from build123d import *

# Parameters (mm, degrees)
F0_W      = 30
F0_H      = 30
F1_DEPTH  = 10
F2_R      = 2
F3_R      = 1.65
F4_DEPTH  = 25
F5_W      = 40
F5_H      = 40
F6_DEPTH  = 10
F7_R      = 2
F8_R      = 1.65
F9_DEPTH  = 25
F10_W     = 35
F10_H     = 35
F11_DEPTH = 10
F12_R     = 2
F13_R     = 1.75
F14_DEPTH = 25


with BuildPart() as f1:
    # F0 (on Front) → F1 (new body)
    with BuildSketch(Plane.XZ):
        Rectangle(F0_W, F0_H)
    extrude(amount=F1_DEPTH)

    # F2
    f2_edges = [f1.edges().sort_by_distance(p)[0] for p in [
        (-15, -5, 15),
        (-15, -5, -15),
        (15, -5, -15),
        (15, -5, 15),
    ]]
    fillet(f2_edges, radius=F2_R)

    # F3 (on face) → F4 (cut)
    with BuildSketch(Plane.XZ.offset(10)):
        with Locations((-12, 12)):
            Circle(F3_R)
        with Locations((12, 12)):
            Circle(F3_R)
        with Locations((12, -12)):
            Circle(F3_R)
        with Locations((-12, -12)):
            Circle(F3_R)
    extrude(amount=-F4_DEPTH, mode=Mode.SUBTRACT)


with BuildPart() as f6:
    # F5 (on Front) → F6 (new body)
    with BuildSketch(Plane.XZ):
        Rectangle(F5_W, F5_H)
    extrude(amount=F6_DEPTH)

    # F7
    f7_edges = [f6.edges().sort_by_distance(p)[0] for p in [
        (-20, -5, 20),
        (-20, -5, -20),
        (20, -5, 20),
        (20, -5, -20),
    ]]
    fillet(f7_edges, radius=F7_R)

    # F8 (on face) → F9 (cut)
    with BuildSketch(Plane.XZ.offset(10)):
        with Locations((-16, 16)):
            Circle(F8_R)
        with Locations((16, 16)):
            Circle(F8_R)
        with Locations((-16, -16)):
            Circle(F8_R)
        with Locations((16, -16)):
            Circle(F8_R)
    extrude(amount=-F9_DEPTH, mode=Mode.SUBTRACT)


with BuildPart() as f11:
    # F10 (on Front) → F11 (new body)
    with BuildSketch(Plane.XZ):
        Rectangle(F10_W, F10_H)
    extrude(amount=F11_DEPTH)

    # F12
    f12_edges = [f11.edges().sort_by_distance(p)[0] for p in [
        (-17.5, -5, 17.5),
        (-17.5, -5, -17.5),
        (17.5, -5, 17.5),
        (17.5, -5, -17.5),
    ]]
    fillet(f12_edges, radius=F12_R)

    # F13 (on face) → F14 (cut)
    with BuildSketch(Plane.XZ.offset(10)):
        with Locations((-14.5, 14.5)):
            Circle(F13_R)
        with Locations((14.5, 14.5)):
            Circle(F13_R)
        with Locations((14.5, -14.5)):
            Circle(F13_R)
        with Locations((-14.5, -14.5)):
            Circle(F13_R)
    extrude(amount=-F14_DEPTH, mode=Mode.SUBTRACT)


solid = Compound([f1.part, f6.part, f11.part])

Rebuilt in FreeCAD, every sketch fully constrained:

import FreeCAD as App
import Part
import Sketcher
from FreeCAD import Vector


def edges_at(feature, points):
    """Names of the edges that pass closest to the given points."""
    edges = feature.Shape.Edges
    near = lambda p: min(range(len(edges)), key=lambda i: edges[i].distToShape(Part.Vertex(*p))[0])
    return sorted({f"Edge{near(p) + 1}" for p in points})

doc = App.newDocument("Part")
params = doc.addObject("Spreadsheet::Sheet", "Params")
for row, (alias, value) in enumerate([
    ("sketch1_width", "30 mm"),
    ("pad1_length", "10 mm"),
    ("fillet_radius", "2 mm"),
    ("sketch2_diameter", "3.3 mm"),
    ("pocket1_length", "25 mm"),
    ("sketch3_width", "40 mm"),
    ("pad2_length", "10 mm"),
    ("fillet2_radius", "2 mm"),
    ("sketch4_diameter", "3.3 mm"),
    ("pocket2_length", "25 mm"),
    ("sketch5_width", "35 mm"),
    ("pad3_length", "10 mm"),
    ("fillet3_radius", "2 mm"),
    ("sketch6_diameter", "3.5 mm"),
    ("pocket3_length", "25 mm"),
], start=1):
    params.set(f"A{row}", alias)
    params.set(f"B{row}", "=" + value)
    params.setAlias(f"B{row}", alias)

body = doc.addObject("PartDesign::Body", "Body")

# Sketch on XZ plane
sketch1 = doc.addObject("Sketcher::SketchObject", "Sketch")
body.addObject(sketch1)
sketch1.AttachmentSupport = (doc.XZ_Plane, [""])
sketch1.MapMode = "FlatFace"
sketch1.addGeometry([
    Part.LineSegment(Vector(-15, 15, 0), Vector(-15, -15, 0)),
    Part.LineSegment(Vector(-15, -15, 0), Vector(15, -15, 0)),
    Part.LineSegment(Vector(15, -15, 0), Vector(15, 15, 0)),
    Part.LineSegment(Vector(15, 15, 0), Vector(-15, 15, 0)),
], False)
sketch1.addConstraint([
    Sketcher.Constraint("Coincident", 0, 2, 1, 1),
    Sketcher.Constraint("Coincident", 1, 2, 2, 1),
    Sketcher.Constraint("Coincident", 2, 2, 3, 1),
    Sketcher.Constraint("Coincident", 3, 2, 0, 1),
    Sketcher.Constraint("Vertical", 0),
    Sketcher.Constraint("Horizontal", 1),
    Sketcher.Constraint("Vertical", 2),
    Sketcher.Constraint("Horizontal", 3),
    Sketcher.Constraint("Symmetric", 0, 2, 2, 2, -1, 1),
    Sketcher.Constraint("Equal", 3, 0),
    Sketcher.Constraint("DistanceX", 1, 1, 1, 2, 30.0),
])
sketch1.setExpression("Constraints[10]", "Params.sketch1_width")
pad1 = doc.addObject("PartDesign::Pad", "Pad")
body.addObject(pad1)
pad1.Profile = sketch1
pad1.setExpression("Length", "Params.pad1_length")
doc.recompute()

fillet = doc.addObject("PartDesign::Fillet", "Fillet")
body.addObject(fillet)
fillet.Base = (pad1, edges_at(pad1, [
    (-15, -5, 15),
    (-15, -5, -15),
    (15, -5, -15),
    (15, -5, 15),
]))
fillet.setExpression("Radius", "Params.fillet_radius")

# Sketch on XZ plane
sketch2 = doc.addObject("Sketcher::SketchObject", "Sketch001")
body.addObject(sketch2)
sketch2.AttachmentSupport = (doc.XZ_Plane, [""])
sketch2.MapMode = "FlatFace"
sketch2.AttachmentOffset = App.Placement(Vector(0, 0, 10), App.Rotation())
sketch2.addGeometry([
    Part.Circle(Vector(-12, 12, 0), Vector(0, 0, 1), 1.6),
    Part.Circle(Vector(12, 12, 0), Vector(0, 0, 1), 1.6),
    Part.Circle(Vector(12, -12, 0), Vector(0, 0, 1), 1.6),
    Part.Circle(Vector(-12, -12, 0), Vector(0, 0, 1), 1.6),
], False)
sketch2.addConstraint([
    Sketcher.Constraint("Equal", 0, 1),
    Sketcher.Constraint("Equal", 1, 2),
    Sketcher.Constraint("Equal", 2, 3),
    Sketcher.Constraint("Symmetric", 0, 3, 2, 3, -1, 1),
    Sketcher.Constraint("Symmetric", 1, 3, 3, 3, -1, 1),
    Sketcher.Constraint("Symmetric", 0, 3, 1, 3, -2),
    Sketcher.Constraint("Diameter", 0, 3.3),
    Sketcher.Constraint("DistanceX", 0, 3, -1, 1, 12.0),
    Sketcher.Constraint("DistanceY", -1, 1, 0, 3, 12.0),
])
sketch2.setExpression("Constraints[6]", "Params.sketch2_diameter")
pocket1 = doc.addObject("PartDesign::Pocket", "Pocket")
body.addObject(pocket1)
pocket1.Profile = sketch2
pocket1.setExpression("Length", "Params.pocket1_length")
body2 = doc.addObject("PartDesign::Body", "Body001")

# Sketch on XZ plane
sketch3 = doc.addObject("Sketcher::SketchObject", "Sketch002")
body2.addObject(sketch3)
sketch3.AttachmentSupport = (doc.getObject("XZ_Plane001"), [""])
sketch3.MapMode = "FlatFace"
sketch3.addGeometry([
    Part.LineSegment(Vector(-20, 20, 0), Vector(-20, -20, 0)),
    Part.LineSegment(Vector(-20, -20, 0), Vector(20, -20, 0)),
    Part.LineSegment(Vector(20, -20, 0), Vector(20, 20, 0)),
    Part.LineSegment(Vector(20, 20, 0), Vector(-20, 20, 0)),
], False)
sketch3.addConstraint([
    Sketcher.Constraint("Coincident", 0, 2, 1, 1),
    Sketcher.Constraint("Coincident", 1, 2, 2, 1),
    Sketcher.Constraint("Coincident", 2, 2, 3, 1),
    Sketcher.Constraint("Coincident", 3, 2, 0, 1),
    Sketcher.Constraint("Vertical", 0),
    Sketcher.Constraint("Horizontal", 1),
    Sketcher.Constraint("Vertical", 2),
    Sketcher.Constraint("Horizontal", 3),
    Sketcher.Constraint("Symmetric", 0, 2, 2, 2, -1, 1),
    Sketcher.Constraint("Equal", 3, 0),
    Sketcher.Constraint("DistanceX", 1, 1, 1, 2, 40.0),
])
sketch3.setExpression("Constraints[10]", "Params.sketch3_width")
pad2 = doc.addObject("PartDesign::Pad", "Pad001")
body2.addObject(pad2)
pad2.Profile = sketch3
pad2.setExpression("Length", "Params.pad2_length")
doc.recompute()

fillet2 = doc.addObject("PartDesign::Fillet", "Fillet001")
body2.addObject(fillet2)
fillet2.Base = (pad2, edges_at(pad2, [
    (-20, -5, 20),
    (-20, -5, -20),
    (20, -5, 20),
    (20, -5, -20),
]))
fillet2.setExpression("Radius", "Params.fillet2_radius")

# Sketch on XZ plane
sketch4 = doc.addObject("Sketcher::SketchObject", "Sketch003")
body2.addObject(sketch4)
sketch4.AttachmentSupport = (doc.getObject("XZ_Plane001"), [""])
sketch4.MapMode = "FlatFace"
sketch4.AttachmentOffset = App.Placement(Vector(0, 0, 10), App.Rotation())
sketch4.addGeometry([
    Part.Circle(Vector(-16, 16, 0), Vector(0, 0, 1), 1.6),
    Part.Circle(Vector(16, 16, 0), Vector(0, 0, 1), 1.6),
    Part.Circle(Vector(-16, -16, 0), Vector(0, 0, 1), 1.6),
    Part.Circle(Vector(16, -16, 0), Vector(0, 0, 1), 1.6),
], False)
sketch4.addConstraint([
    Sketcher.Constraint("Equal", 0, 1),
    Sketcher.Constraint("Equal", 1, 2),
    Sketcher.Constraint("Equal", 2, 3),
    Sketcher.Constraint("Symmetric", 1, 3, 2, 3, -1, 1),
    Sketcher.Constraint("Symmetric", 0, 3, 3, 3, -1, 1),
    Sketcher.Constraint("Symmetric", 0, 3, 1, 3, -2),
    Sketcher.Constraint("Diameter", 0, 3.3),
    Sketcher.Constraint("DistanceX", 0, 3, -1, 1, 16.0),
    Sketcher.Constraint("DistanceY", -1, 1, 0, 3, 16.0),
])
sketch4.setExpression("Constraints[6]", "Params.sketch4_diameter")
pocket2 = doc.addObject("PartDesign::Pocket", "Pocket001")
body2.addObject(pocket2)
pocket2.Profile = sketch4
pocket2.setExpression("Length", "Params.pocket2_length")
body3 = doc.addObject("PartDesign::Body", "Body002")

# Sketch on XZ plane
sketch5 = doc.addObject("Sketcher::SketchObject", "Sketch004")
body3.addObject(sketch5)
sketch5.AttachmentSupport = (doc.getObject("XZ_Plane002"), [""])
sketch5.MapMode = "FlatFace"
sketch5.addGeometry([
    Part.LineSegment(Vector(-18, 18, 0), Vector(-18, -18, 0)),
    Part.LineSegment(Vector(-18, -18, 0), Vector(18, -18, 0)),
    Part.LineSegment(Vector(18, -18, 0), Vector(18, 18, 0)),
    Part.LineSegment(Vector(18, 18, 0), Vector(-18, 18, 0)),
], False)
sketch5.addConstraint([
    Sketcher.Constraint("Coincident", 0, 2, 1, 1),
    Sketcher.Constraint("Coincident", 1, 2, 2, 1),
    Sketcher.Constraint("Coincident", 2, 2, 3, 1),
    Sketcher.Constraint("Coincident", 3, 2, 0, 1),
    Sketcher.Constraint("Vertical", 0),
    Sketcher.Constraint("Horizontal", 1),
    Sketcher.Constraint("Vertical", 2),
    Sketcher.Constraint("Horizontal", 3),
    Sketcher.Constraint("Symmetric", 0, 2, 2, 2, -1, 1),
    Sketcher.Constraint("Equal", 3, 0),
    Sketcher.Constraint("DistanceX", 1, 1, 1, 2, 35.0),
])
sketch5.setExpression("Constraints[10]", "Params.sketch5_width")
pad3 = doc.addObject("PartDesign::Pad", "Pad002")
body3.addObject(pad3)
pad3.Profile = sketch5
pad3.setExpression("Length", "Params.pad3_length")
doc.recompute()

fillet3 = doc.addObject("PartDesign::Fillet", "Fillet002")
body3.addObject(fillet3)
fillet3.Base = (pad3, edges_at(pad3, [
    (-17.5, -5, 17.5),
    (-17.5, -5, -17.5),
    (17.5, -5, 17.5),
    (17.5, -5, -17.5),
]))
fillet3.setExpression("Radius", "Params.fillet3_radius")

# Sketch on XZ plane
sketch6 = doc.addObject("Sketcher::SketchObject", "Sketch005")
body3.addObject(sketch6)
sketch6.AttachmentSupport = (doc.getObject("XZ_Plane002"), [""])
sketch6.MapMode = "FlatFace"
sketch6.AttachmentOffset = App.Placement(Vector(0, 0, 10), App.Rotation())
sketch6.addGeometry([
    Part.Circle(Vector(-14.5, 14.5, 0), Vector(0, 0, 1), 1.8),
    Part.Circle(Vector(14.5, 14.5, 0), Vector(0, 0, 1), 1.8),
    Part.Circle(Vector(14.5, -14.5, 0), Vector(0, 0, 1), 1.8),
    Part.Circle(Vector(-14.5, -14.5, 0), Vector(0, 0, 1), 1.8),
], False)
sketch6.addConstraint([
    Sketcher.Constraint("Equal", 0, 1),
    Sketcher.Constraint("Equal", 1, 2),
    Sketcher.Constraint("Equal", 2, 3),
    Sketcher.Constraint("Symmetric", 0, 3, 2, 3, -1, 1),
    Sketcher.Constraint("Symmetric", 1, 3, 3, 3, -1, 1),
    Sketcher.Constraint("Symmetric", 0, 3, 1, 3, -2),
    Sketcher.Constraint("Diameter", 0, 3.5),
    Sketcher.Constraint("DistanceX", 0, 3, 1, 3, 29.0),
    Sketcher.Constraint("DistanceY", 2, 3, 1, 3, 29.0),
])
sketch6.setExpression("Constraints[6]", "Params.sketch6_diameter")
pocket3 = doc.addObject("PartDesign::Pocket", "Pocket002")
body3.addObject(pocket3)
pocket3.Profile = sketch6
pocket3.setExpression("Length", "Params.pocket3_length")

doc.recompute()
